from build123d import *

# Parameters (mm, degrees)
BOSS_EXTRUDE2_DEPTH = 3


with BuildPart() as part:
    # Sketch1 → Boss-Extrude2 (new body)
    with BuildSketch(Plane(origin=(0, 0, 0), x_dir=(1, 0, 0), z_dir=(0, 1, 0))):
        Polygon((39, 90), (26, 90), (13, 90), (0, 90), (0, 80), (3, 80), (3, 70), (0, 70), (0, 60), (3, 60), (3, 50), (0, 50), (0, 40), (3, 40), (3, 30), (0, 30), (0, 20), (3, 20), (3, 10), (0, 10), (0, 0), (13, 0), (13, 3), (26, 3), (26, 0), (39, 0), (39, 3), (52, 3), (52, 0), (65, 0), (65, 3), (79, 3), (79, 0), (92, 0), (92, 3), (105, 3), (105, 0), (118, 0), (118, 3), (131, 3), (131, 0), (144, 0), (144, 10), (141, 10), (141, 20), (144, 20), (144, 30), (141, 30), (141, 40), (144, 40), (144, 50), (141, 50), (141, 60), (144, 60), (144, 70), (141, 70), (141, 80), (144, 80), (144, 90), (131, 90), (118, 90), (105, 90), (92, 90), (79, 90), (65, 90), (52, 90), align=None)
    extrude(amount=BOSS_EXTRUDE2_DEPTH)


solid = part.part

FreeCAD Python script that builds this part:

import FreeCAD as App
import Part
import Sketcher
from FreeCAD import Vector
Q = App.Units.Quantity

doc = App.newDocument("Part")
body = doc.addObject("PartDesign::Body", "Body")

sketch1 = body.newObject("Sketcher::SketchObject", "Sketch")
sketch1.AttachmentSupport = (doc.getObject("XZ_Plane"), [""])
sketch1.MapMode = "FlatFace"
sketch1.addGeometry([
    Part.LineSegment(Vector(0, -90, 0), Vector(0, -80, 0)),
    Part.LineSegment(Vector(0, -80, 0), Vector(3, -80, 0)),
    Part.LineSegment(Vector(3, -80, 0), Vector(3, -70, 0)),
    Part.LineSegment(Vector(3, -70, 0), Vector(0, -70, 0)),
    Part.LineSegment(Vector(0, -70, 0), Vector(0, -60, 0)),
    Part.LineSegment(Vector(0, -60, 0), Vector(3, -60, 0)),
    Part.LineSegment(Vector(3, -60, 0), Vector(3, -50, 0)),
    Part.LineSegment(Vector(3, -50, 0), Vector(0, -50, 0)),
    Part.LineSegment(Vector(0, -50, 0), Vector(0, -40, 0)),
    Part.LineSegment(Vector(0, -40, 0), Vector(3, -40, 0)),
    Part.LineSegment(Vector(3, -40, 0), Vector(3, -30, 0)),
    Part.LineSegment(Vector(3, -30, 0), Vector(0, -30, 0)),
    Part.LineSegment(Vector(0, -30, 0), Vector(0, -20, 0)),
    Part.LineSegment(Vector(0, -20, 0), Vector(3, -20, 0)),
    Part.LineSegment(Vector(3, -20, 0), Vector(3, -10, 0)),
    Part.LineSegment(Vector(3, -10, 0), Vector(0, -10, 0)),
    Part.LineSegment(Vector(0, -10, 0), Vector(0, 0, 0)),
    Part.LineSegment(Vector(0, 0, 0), Vector(13, 0, 0)),
    Part.LineSegment(Vector(13, 0, 0), Vector(13, -3, 0)),
    Part.LineSegment(Vector(13, -3, 0), Vector(26, -3, 0)),
    Part.LineSegment(Vector(26, -3, 0), Vector(26, 0, 0)),
    Part.LineSegment(Vector(26, 0, 0), Vector(39, 0, 0)),
    Part.LineSegment(Vector(39, 0, 0), Vector(39, -3, 0)),
    Part.LineSegment(Vector(39, -3, 0), Vector(52, -3, 0)),
    Part.LineSegment(Vector(52, -3, 0), Vector(52, 0, 0)),
    Part.LineSegment(Vector(52, 0, 0), Vector(65, 0, 0)),
    Part.LineSegment(Vector(65, 0, 0), Vector(65, -3, 0)),
    Part.LineSegment(Vector(65, -3, 0), Vector(79, -3, 0)),
    Part.LineSegment(Vector(79, -3, 0), Vector(79, 0, 0)),
    Part.LineSegment(Vector(79, 0, 0), Vector(92, 0, 0)),
    Part.LineSegment(Vector(92, 0, 0), Vector(92, -3, 0)),
    Part.LineSegment(Vector(92, -3, 0), Vector(105, -3, 0)),
    Part.LineSegment(Vector(105, -3, 0), Vector(105, 0, 0)),
    Part.LineSegment(Vector(105, 0, 0), Vector(118, 0, 0)),
    Part.LineSegment(Vector(118, 0, 0), Vector(118, -3, 0)),
    Part.LineSegment(Vector(118, -3, 0), Vector(131, -3, 0)),
    Part.LineSegment(Vector(131, -3, 0), Vector(131, 0, 0)),
    Part.LineSegment(Vector(131, 0, 0), Vector(144, 0, 0)),
    Part.LineSegment(Vector(144, 0, 0), Vector(144, -10, 0)),
    Part.LineSegment(Vector(144, -10, 0), Vector(141, -10, 0)),
    Part.LineSegment(Vector(141, -10, 0), Vector(141, -20, 0)),
    Part.LineSegment(Vector(141, -20, 0), Vector(144, -20, 0)),
    Part.LineSegment(Vector(144, -20, 0), Vector(144, -30, 0)),
    Part.LineSegment(Vector(144, -30, 0), Vector(141, -30, 0)),
    Part.LineSegment(Vector(141, -30, 0), Vector(141, -40, 0)),
    Part.LineSegment(Vector(141, -40, 0), Vector(144, -40, 0)),
    Part.LineSegment(Vector(144, -40, 0), Vector(144, -50, 0)),
    Part.LineSegment(Vector(144, -50, 0), Vector(141, -50, 0)),
    Part.LineSegment(Vector(141, -50, 0), Vector(141, -60, 0)),
    Part.LineSegment(Vector(141, -60, 0), Vector(144, -60, 0)),
    Part.LineSegment(Vector(144, -60, 0), Vector(144, -70, 0)),
    Part.LineSegment(Vector(144, -70, 0), Vector(141, -70, 0)),
    Part.LineSegment(Vector(141, -70, 0), Vector(141, -80, 0)),
    Part.LineSegment(Vector(141, -80, 0), Vector(144, -80, 0)),
    Part.LineSegment(Vector(144, -80, 0), Vector(144, -90, 0)),
    Part.LineSegment(Vector(144, -90, 0), Vector(0, -90, 0)),
], False)
sketch1.addConstraint([
    Sketcher.Constraint("Coincident", 0, 2, 1, 1),
    Sketcher.Constraint("Coincident", 1, 2, 2, 1),
    Sketcher.Constraint("Coincident", 2, 2, 3, 1),
    Sketcher.Constraint("Coincident", 3, 2, 4, 1),
    Sketcher.Constraint("Coincident", 4, 2, 5, 1),
    Sketcher.Constraint("Coincident", 5, 2, 6, 1),
    Sketcher.Constraint("Coincident", 6, 2, 7, 1),
    Sketcher.Constraint("Coincident", 7, 2, 8, 1),
    Sketcher.Constraint("Coincident", 8, 2, 9, 1),
    Sketcher.Constraint("Coincident", 9, 2, 10, 1),
    Sketcher.Constraint("Coincident", 10, 2, 11, 1),
    Sketcher.Constraint("Coincident", 11, 2, 12, 1),
    Sketcher.Constraint("Coincident", 12, 2, 13, 1),
    Sketcher.Constraint("Coincident", 13, 2, 14, 1),
    Sketcher.Constraint("Coincident", 14, 2, 15, 1),
    Sketcher.Constraint("Coincident", 15, 2, 16, 1),
    Sketcher.Constraint("Coincident", 16, 2, 17, 1),
    Sketcher.Constraint("Coincident", 17, 2, 18, 1),
    Sketcher.Constraint("Coincident", 18, 2, 19, 1),
    Sketcher.Constraint("Coincident", 19, 2, 20, 1),
    Sketcher.Constraint("Coincident", 20, 2, 21, 1),
    Sketcher.Constraint("Coincident", 21, 2, 22, 1),
    Sketcher.Constraint("Coincident", 22, 2, 23, 1),
    Sketcher.Constraint("Coincident", 23, 2, 24, 1),
    Sketcher.Constraint("Coincident", 24, 2, 25, 1),
    Sketcher.Constraint("Coincident", 25, 2, 26, 1),
    Sketcher.Constraint("Coincident", 26, 2, 27, 1),
    Sketcher.Constraint("Coincident", 27, 2, 28, 1),
    Sketcher.Constraint("Coincident", 28, 2, 29, 1),
    Sketcher.Constraint("Coincident", 29, 2, 30, 1),
    Sketcher.Constraint("Coincident", 30, 2, 31, 1),
    Sketcher.Constraint("Coincident", 31, 2, 32, 1),
    Sketcher.Constraint("Coincident", 32, 2, 33, 1),
    Sketcher.Constraint("Coincident", 33, 2, 34, 1),
    Sketcher.Constraint("Coincident", 34, 2, 35, 1),
    Sketcher.Constraint("Coincident", 35, 2, 36, 1),
    Sketcher.Constraint("Coincident", 36, 2, 37, 1),
    Sketcher.Constraint("Coincident", 37, 2, 38, 1),
    Sketcher.Constraint("Coincident", 38, 2, 39, 1),
    Sketcher.Constraint("Coincident", 39, 2, 40, 1),
    Sketcher.Constraint("Coincident", 40, 2, 41, 1),
    Sketcher.Constraint("Coincident", 41, 2, 42, 1),
    Sketcher.Constraint("Coincident", 42, 2, 43, 1),
    Sketcher.Constraint("Coincident", 43, 2, 44, 1),
    Sketcher.Constraint("Coincident", 44, 2, 45, 1),
    Sketcher.Constraint("Coincident", 45, 2, 46, 1),
    Sketcher.Constraint("Coincident", 46, 2, 47, 1),
    Sketcher.Constraint("Coincident", 47, 2, 48, 1),
    Sketcher.Constraint("Coincident", 48, 2, 49, 1),
    Sketcher.Constraint("Coincident", 49, 2, 50, 1),
    Sketcher.Constraint("Coincident", 50, 2, 51, 1),
    Sketcher.Constraint("Coincident", 51, 2, 52, 1),
    Sketcher.Constraint("Coincident", 52, 2, 53, 1),
    Sketcher.Constraint("Coincident", 53, 2, 54, 1),
    Sketcher.Constraint("Coincident", 54, 2, 55, 1),
    Sketcher.Constraint("Coincident", 55, 2, 0, 1),
    Sketcher.Constraint("Vertical", 0),
    Sketcher.Constraint("Horizontal", 1),
    Sketcher.Constraint("Vertical", 2),
    Sketcher.Constraint("Horizontal", 3),
    Sketcher.Constraint("Vertical", 4),
    Sketcher.Constraint("Horizontal", 5),
    Sketcher.Constraint("Vertical", 6),
    Sketcher.Constraint("Horizontal", 7),
    Sketcher.Constraint("Vertical", 8),
    Sketcher.Constraint("Horizontal", 9),
    Sketcher.Constraint("Vertical", 10),
    Sketcher.Constraint("Horizontal", 11),
    Sketcher.Constraint("Vertical", 12),
    Sketcher.Constraint("Horizontal", 13),
    Sketcher.Constraint("Vertical", 14),
    Sketcher.Constraint("Horizontal", 15),
    Sketcher.Constraint("Vertical", 16),
    Sketcher.Constraint("Horizontal", 17),
    Sketcher.Constraint("Vertical", 18),
    Sketcher.Constraint("Horizontal", 19),
    Sketcher.Constraint("Vertical", 20),
    Sketcher.Constraint("Horizontal", 21),
    Sketcher.Constraint("Vertical", 22),
    Sketcher.Constraint("Horizontal", 23),
    Sketcher.Constraint("Vertical", 24),
    Sketcher.Constraint("Horizontal", 25),
    Sketcher.Constraint("Vertical", 26),
    Sketcher.Constraint("Horizontal", 27),
    Sketcher.Constraint("Vertical", 28),
    Sketcher.Constraint("Horizontal", 29),
    Sketcher.Constraint("Vertical", 30),
    Sketcher.Constraint("Horizontal", 31),
    Sketcher.Constraint("Vertical", 32),
    Sketcher.Constraint("Horizontal", 33),
    Sketcher.Constraint("Vertical", 34),
    Sketcher.Constraint("Horizontal", 35),
    Sketcher.Constraint("Vertical", 36),
    Sketcher.Constraint("Horizontal", 37),
    Sketcher.Constraint("Vertical", 38),
    Sketcher.Constraint("Horizontal", 39),
    Sketcher.Constraint("Vertical", 40),
    Sketcher.Constraint("Horizontal", 41),
    Sketcher.Constraint("Vertical", 42),
    Sketcher.Constraint("Horizontal", 43),
    Sketcher.Constraint("Vertical", 44),
    Sketcher.Constraint("Horizontal", 45),
    Sketcher.Constraint("Vertical", 46),
    Sketcher.Constraint("Horizontal", 47),
    Sketcher.Constraint("Vertical", 48),
    Sketcher.Constraint("Horizontal", 49),
    Sketcher.Constraint("Vertical", 50),
    Sketcher.Constraint("Horizontal", 51),
    Sketcher.Constraint("Vertical", 52),
    Sketcher.Constraint("Horizontal", 53),
    Sketcher.Constraint("Vertical", 54),
    Sketcher.Constraint("Horizontal", 55),
    Sketcher.Constraint("Coincident", 16, 2, -1, 1),
    Sketcher.Constraint("PointOnObject", 0, 2, -2),
    Sketcher.Constraint("PointOnObject", 3, 2, -2),
    Sketcher.Constraint("PointOnObject", 7, 2, -2),
    Sketcher.Constraint("PointOnObject", 11, 2, -2),
    Sketcher.Constraint("PointOnObject", 20, 2, -1),
    Sketcher.Constraint("PointOnObject", 24, 2, -1),
    Sketcher.Constraint("PointOnObject", 28, 2, -1),
    Sketcher.Constraint("PointOnObject", 32, 2, -1),
    Sketcher.Constraint("PointOnObject", 36, 2, -1),
    Sketcher.Constraint("Horizontal", 19, 2, 22, 2),
    Sketcher.Constraint("Horizontal", 23, 2, 26, 2),
    Sketcher.Constraint("Horizontal", 27, 2, 30, 2),
    Sketcher.Constraint("Horizontal", 31, 2, 34, 2),
    Sketcher.Constraint("Horizontal", 15, 2, 38, 2),
    Sketcher.Constraint("Horizontal", 13, 2, 40, 2),
    Sketcher.Constraint("Horizontal", 11, 2, 42, 2),
    Sketcher.Constraint("Horizontal", 9, 2, 44, 2),
    Sketcher.Constraint("Horizontal", 7, 2, 46, 2),
    Sketcher.Constraint("Horizontal", 5, 2, 48, 2),
    Sketcher.Constraint("Horizontal", 3, 2, 50, 2),
    Sketcher.Constraint("Horizontal", 1, 2, 52, 2),
    Sketcher.Constraint("Vertical", 2, 2, 5, 2),
    Sketcher.Constraint("Vertical", 6, 2, 9, 2),
    Sketcher.Constraint("Vertical", 10, 2, 13, 2),
    Sketcher.Constraint("Vertical", 38, 2, 41, 2),
    Sketcher.Constraint("Vertical", 40, 2, 43, 2),
    Sketcher.Constraint("Vertical", 42, 2, 45, 2),
    Sketcher.Constraint("Vertical", 44, 2, 47, 2),
    Sketcher.Constraint("Vertical", 46, 2, 49, 2),
    Sketcher.Constraint("Vertical", 48, 2, 51, 2),
    Sketcher.Constraint("Vertical", 50, 2, 53, 2),
    Sketcher.Constraint("Equal", 17, 19),
    Sketcher.Constraint("Equal", 19, 21),
    Sketcher.Constraint("Equal", 21, 23),
    Sketcher.Constraint("Equal", 23, 25),
    Sketcher.Constraint("Equal", 25, 29),
    Sketcher.Constraint("Equal", 29, 31),
    Sketcher.Constraint("Equal", 31, 33),
    Sketcher.Constraint("Equal", 33, 35),
    Sketcher.Constraint("Equal", 35, 37),
    Sketcher.Constraint("Equal", 15, 39),
    Sketcher.Constraint("Equal", 0, 2),
    Sketcher.Constraint("Equal", 2, 4),
    Sketcher.Constraint("Equal", 4, 6),
    Sketcher.Constraint("Equal", 6, 8),
    Sketcher.Constraint("Equal", 8, 10),
    Sketcher.Constraint("Equal", 10, 12),
    Sketcher.Constraint("Equal", 12, 14),
    Sketcher.Constraint("Equal", 14, 16),
    Sketcher.Constraint("Equal", 53, 18),
    Sketcher.Constraint("DistanceX", 1, 1, 1, 2, Q("3 mm")),
    Sketcher.Constraint("DistanceX", 17, 1, 17, 2, Q("13 mm")),
    Sketcher.Constraint("DistanceX", 27, 1, 27, 2, Q("14 mm")),
    Sketcher.Constraint("DistanceY", 0, 1, 0, 2, Q("10 mm")),
])
pad1 = body.newObject("PartDesign::Pad", "Pad")
pad1.Profile = sketch1
pad1.Length = 3
pad1.Reversed = True

doc.recompute()
